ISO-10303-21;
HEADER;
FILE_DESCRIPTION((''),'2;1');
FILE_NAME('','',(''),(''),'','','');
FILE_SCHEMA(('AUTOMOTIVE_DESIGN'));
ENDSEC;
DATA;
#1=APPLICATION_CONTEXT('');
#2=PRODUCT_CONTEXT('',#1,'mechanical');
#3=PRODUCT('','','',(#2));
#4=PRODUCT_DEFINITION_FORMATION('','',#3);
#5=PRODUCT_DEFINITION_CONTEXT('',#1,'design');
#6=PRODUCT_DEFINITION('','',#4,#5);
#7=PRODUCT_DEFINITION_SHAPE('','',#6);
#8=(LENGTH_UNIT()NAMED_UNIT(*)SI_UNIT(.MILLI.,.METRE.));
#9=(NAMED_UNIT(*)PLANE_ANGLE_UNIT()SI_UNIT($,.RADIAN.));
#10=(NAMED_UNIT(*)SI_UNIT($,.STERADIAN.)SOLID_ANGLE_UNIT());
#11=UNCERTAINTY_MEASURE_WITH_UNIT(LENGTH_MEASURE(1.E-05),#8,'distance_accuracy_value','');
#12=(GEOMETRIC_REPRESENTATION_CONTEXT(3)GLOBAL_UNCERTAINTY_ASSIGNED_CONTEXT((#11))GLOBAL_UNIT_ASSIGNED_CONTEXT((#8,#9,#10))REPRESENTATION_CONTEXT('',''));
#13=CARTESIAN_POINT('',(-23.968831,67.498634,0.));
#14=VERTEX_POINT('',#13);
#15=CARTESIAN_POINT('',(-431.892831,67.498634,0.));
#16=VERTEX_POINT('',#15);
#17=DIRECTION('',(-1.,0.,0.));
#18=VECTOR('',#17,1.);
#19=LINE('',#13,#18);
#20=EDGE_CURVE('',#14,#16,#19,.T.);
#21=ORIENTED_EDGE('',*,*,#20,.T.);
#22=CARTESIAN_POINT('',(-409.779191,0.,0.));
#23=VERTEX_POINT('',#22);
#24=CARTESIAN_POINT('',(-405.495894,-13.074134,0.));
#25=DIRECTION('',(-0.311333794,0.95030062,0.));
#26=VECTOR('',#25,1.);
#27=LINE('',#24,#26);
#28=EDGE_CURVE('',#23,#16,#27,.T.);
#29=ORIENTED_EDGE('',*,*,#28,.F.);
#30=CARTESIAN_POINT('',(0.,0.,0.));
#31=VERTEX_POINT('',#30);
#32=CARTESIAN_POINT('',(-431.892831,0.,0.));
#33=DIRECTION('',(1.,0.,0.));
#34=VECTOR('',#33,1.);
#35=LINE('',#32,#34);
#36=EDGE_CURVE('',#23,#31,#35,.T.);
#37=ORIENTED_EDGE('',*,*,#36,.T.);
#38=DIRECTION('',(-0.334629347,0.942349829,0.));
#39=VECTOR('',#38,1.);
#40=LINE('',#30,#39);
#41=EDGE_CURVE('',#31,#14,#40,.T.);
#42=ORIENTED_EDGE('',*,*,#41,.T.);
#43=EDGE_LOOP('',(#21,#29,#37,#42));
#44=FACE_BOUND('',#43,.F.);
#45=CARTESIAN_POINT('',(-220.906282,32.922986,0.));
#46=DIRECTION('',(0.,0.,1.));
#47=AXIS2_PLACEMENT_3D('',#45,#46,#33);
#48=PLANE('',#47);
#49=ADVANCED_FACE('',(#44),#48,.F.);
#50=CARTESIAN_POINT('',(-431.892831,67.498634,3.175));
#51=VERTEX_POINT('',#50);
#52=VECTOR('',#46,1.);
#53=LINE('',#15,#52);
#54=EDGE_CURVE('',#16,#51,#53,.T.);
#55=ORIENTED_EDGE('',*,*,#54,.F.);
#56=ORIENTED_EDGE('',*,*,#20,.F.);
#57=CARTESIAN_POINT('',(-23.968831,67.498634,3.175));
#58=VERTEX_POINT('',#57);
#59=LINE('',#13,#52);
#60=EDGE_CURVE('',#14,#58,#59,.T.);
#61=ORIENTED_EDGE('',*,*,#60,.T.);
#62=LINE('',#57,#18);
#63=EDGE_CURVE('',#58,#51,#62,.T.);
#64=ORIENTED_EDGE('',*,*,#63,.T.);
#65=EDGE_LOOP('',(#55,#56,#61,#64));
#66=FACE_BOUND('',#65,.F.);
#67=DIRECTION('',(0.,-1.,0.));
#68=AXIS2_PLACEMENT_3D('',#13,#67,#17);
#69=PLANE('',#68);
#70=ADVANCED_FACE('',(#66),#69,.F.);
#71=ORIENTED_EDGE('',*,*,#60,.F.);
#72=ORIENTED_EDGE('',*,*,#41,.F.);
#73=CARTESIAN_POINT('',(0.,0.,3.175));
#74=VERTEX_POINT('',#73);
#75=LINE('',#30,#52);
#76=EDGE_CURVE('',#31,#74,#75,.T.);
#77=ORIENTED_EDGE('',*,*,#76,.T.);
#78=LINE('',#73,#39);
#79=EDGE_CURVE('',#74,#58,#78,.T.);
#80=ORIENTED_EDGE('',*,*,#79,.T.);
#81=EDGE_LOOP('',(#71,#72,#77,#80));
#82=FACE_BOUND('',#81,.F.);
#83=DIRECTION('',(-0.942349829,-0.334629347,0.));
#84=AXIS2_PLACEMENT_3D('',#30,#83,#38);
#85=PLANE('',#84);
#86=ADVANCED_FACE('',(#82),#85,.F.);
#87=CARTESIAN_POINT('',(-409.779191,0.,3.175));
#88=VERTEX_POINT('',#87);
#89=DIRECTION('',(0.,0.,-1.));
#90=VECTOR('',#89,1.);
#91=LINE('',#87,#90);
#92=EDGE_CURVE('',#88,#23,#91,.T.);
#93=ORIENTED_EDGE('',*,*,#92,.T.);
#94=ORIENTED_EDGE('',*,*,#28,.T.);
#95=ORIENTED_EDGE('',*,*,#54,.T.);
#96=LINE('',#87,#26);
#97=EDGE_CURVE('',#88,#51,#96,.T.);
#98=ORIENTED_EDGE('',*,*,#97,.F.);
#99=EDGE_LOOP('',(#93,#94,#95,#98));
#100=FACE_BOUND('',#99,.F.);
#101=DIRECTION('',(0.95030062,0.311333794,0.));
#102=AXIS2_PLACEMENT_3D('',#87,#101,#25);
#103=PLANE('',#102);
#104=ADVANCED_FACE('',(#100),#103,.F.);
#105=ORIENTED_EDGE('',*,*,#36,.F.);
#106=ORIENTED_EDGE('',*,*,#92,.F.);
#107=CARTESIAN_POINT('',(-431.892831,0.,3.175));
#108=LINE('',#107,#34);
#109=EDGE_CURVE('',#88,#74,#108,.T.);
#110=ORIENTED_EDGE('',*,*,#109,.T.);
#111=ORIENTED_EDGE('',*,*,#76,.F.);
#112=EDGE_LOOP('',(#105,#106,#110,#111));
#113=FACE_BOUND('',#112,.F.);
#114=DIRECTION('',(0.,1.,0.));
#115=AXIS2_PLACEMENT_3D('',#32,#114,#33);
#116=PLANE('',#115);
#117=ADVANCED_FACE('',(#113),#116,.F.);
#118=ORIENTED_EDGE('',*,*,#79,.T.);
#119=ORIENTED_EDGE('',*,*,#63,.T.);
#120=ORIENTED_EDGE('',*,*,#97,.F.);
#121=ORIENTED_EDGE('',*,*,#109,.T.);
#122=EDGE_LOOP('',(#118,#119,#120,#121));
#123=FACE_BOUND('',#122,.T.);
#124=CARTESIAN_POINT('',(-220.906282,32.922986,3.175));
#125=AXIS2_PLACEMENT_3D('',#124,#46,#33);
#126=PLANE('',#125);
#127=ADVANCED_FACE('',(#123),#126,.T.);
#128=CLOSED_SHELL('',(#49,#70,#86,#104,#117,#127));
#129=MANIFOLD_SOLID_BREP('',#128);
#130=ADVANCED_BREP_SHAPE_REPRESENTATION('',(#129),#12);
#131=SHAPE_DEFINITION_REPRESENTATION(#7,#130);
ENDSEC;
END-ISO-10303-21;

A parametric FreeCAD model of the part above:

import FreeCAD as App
import Part
import Sketcher
from FreeCAD import Vector
Q = App.Units.Quantity

doc = App.newDocument("Part")
body = doc.addObject("PartDesign::Body", "Body")

sketch1 = body.newObject("Sketcher::SketchObject", "Sketch")
sketch1.AttachmentSupport = (doc.getObject("XY_Plane"), [""])
sketch1.MapMode = "FlatFace"
sketch1.addGeometry(Part.LineSegment(Vector(-432, 0, 0), Vector(0, 0, 0)), False)
sketch1.addGeometry(Part.LineSegment(Vector(0, 0, 0), Vector(-24, 67, 0)), False)
sketch1.addGeometry(Part.LineSegment(Vector(-24, 67, 0), Vector(-432, 67, 0)), False)
sketch1.addGeometry(Part.LineSegment(Vector(-432, 67, 0), Vector(-432, 0, 0)), False)
sketch1.addConstraint(Sketcher.Constraint("Coincident", 0, 2, 1, 1))
sketch1.addConstraint(Sketcher.Constraint("Coincident", 1, 2, 2, 1))
sketch1.addConstraint(Sketcher.Constraint("Coincident", 2, 2, 3, 1))
sketch1.addConstraint(Sketcher.Constraint("Coincident", 3, 2, 0, 1))
sketch1.addConstraint(Sketcher.Constraint("Horizontal", 0))
sketch1.addConstraint(Sketcher.Constraint("Horizontal", 2))
sketch1.addConstraint(Sketcher.Constraint("Vertical", 3))
sketch1.addConstraint(Sketcher.Constraint("Coincident", 0, 2, -1, 1))
sketch1.addConstraint(Sketcher.Constraint("DistanceX", 2, 2, 2, 1, Q("16.06 in")))
sketch1.addConstraint(Sketcher.Constraint("Distance", 1, Q("2.82 in")))
sketch1.addConstraint(Sketcher.Constraint("Angle", 1, Q("109.55 deg")))
pad1 = body.newObject("PartDesign::Pad", "Pad")
pad1.Profile = sketch1
pad1.Length = Q("0.125 in")

sketch2 = body.newObject("Sketcher::SketchObject", "Sketch001")
sketch2.AttachmentSupport = (doc.getObject("XY_Plane"), [""])
sketch2.MapMode = "FlatFace"
sketch2.AttachmentOffset = App.Placement(Vector(0, 0, 0.125 * 25.4), App.Rotation())
sketch2.addGeometry(Part.LineSegment(Vector(-410, 0, 0), Vector(-432, 67, 0)), False)
sketch2.addGeometry(Part.LineSegment(Vector(-432, 67, 0), Vector(-432, 0, 0)), False)
sketch2.addGeometry(Part.LineSegment(Vector(-432, 0, 0), Vector(-410, 0, 0)), False)
sketch2.addConstraint(Sketcher.Constraint("Coincident", 0, 2, 1, 1))
sketch2.addConstraint(Sketcher.Constraint("Coincident", 1, 2, 2, 1))
sketch2.addConstraint(Sketcher.Constraint("Coincident", 2, 2, 0, 1))
sketch2.addConstraint(Sketcher.Constraint("Vertical", 1))
sketch2.addConstraint(Sketcher.Constraint("Horizontal", 2))
sketch2.addConstraint(Sketcher.Constraint("PointOnObject", 1, 2, -1))
sketch2.addConstraint(Sketcher.Constraint("DistanceX", 2, 1, 2, 2, Q("22.11364 mm")))
sketch2.addConstraint(Sketcher.Constraint("DistanceY", 1, 2, 1, 1, Q("67.498634 mm")))
sketch2.addConstraint(Sketcher.Constraint("DistanceX", 0, 2, -1, 1, Q("431.892831 mm")))
pocket1 = body.newObject("PartDesign::Pocket", "Pocket")
pocket1.Profile = sketch2
pocket1.Length = Q("1 in")

doc.recompute()
